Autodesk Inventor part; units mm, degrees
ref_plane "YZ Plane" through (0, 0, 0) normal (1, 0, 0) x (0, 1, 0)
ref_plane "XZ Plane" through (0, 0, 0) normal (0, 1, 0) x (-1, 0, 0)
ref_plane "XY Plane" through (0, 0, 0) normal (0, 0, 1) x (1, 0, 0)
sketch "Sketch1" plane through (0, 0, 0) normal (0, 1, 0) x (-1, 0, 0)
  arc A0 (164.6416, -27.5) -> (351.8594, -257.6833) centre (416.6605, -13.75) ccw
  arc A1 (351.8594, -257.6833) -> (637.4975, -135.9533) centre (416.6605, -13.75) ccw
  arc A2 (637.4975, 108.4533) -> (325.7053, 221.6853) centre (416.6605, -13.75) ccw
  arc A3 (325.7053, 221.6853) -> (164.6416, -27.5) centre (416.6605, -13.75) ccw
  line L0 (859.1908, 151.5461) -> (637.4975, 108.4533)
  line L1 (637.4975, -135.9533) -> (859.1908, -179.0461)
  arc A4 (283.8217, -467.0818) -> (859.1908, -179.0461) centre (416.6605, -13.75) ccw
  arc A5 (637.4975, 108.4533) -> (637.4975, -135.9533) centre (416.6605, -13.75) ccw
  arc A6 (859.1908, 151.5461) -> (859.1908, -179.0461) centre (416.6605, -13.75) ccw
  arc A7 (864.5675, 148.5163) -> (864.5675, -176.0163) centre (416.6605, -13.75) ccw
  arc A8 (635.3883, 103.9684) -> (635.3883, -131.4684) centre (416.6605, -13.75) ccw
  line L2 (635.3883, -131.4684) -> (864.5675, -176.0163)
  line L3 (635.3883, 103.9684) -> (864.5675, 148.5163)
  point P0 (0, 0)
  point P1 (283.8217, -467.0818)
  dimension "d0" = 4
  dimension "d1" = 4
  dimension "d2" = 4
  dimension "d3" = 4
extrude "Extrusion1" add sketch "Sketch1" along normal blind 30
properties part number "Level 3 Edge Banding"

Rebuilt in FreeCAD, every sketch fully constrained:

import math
import FreeCAD as App
import Part
import Sketcher

V = App.Vector
Q = App.Units.Quantity

doc = App.newDocument("Part")
body = doc.addObject("PartDesign::Body", "Body")

sketch1 = doc.addObject("Sketcher::SketchObject", "Sketch")
body.addObject(sketch1)
sketch1.AttachmentSupport = (doc.XZ_Plane, [""])
sketch1.MapMode = "FlatFace"
sketch1.addGeometry([
    Part.LineSegment(V(-635, 104, 0), V(-865, 149, 0)),
    Part.ArcOfCircle(Part.Circle(V(-417, -14, 0), V(0, 0, 1), 476), math.radians(-160), math.radians(160)),
    Part.LineSegment(V(-865, -176, 0), V(-635, -131, 0)),
    Part.ArcOfCircle(Part.Circle(V(-417, -14, 0), V(0, 0, 1), 248), math.radians(-152), math.radians(152)),
    Part.ArcOfCircle(Part.Circle(V(-417, -14, 0), V(0, 0, 1), 252), math.radians(-3), math.radians(69)),
    Part.ArcOfCircle(Part.Circle(V(-417, -14, 0), V(0, 0, 1), 252), math.radians(-75), math.radians(-3)),
    Part.ArcOfCircle(Part.Circle(V(-417, -14, 0), V(0, 0, 1), 252), math.radians(-151), math.radians(-75)),
    Part.LineSegment(V(-637, -136, 0), V(-859, -179, 0)),
    Part.ArcOfCircle(Part.Circle(V(-417, -14, 0), V(0, 0, 1), 472), math.radians(-160), math.radians(-74)),
    Part.ArcOfCircle(Part.Circle(V(-417, -14, 0), V(0, 0, 1), 472), math.radians(-74), math.radians(160)),
    Part.LineSegment(V(-859, 152, 0), V(-637, 108, 0)),
    Part.ArcOfCircle(Part.Circle(V(-417, -14, 0), V(0, 0, 1), 252), math.radians(69), math.radians(151)),
], False)
sketch1.addConstraint([
    Sketcher.Constraint("Coincident", 0, 2, 1, 2),
    Sketcher.Constraint("Coincident", 1, 1, 2, 1),
    Sketcher.Constraint("Coincident", 2, 2, 3, 1),
    Sketcher.Constraint("Coincident", 3, 2, 0, 1),
    Sketcher.Constraint("Tangent", 4, 1, 5, 2),
    Sketcher.Constraint("Tangent", 5, 1, 6, 2),
    Sketcher.Constraint("Coincident", 6, 1, 7, 1),
    Sketcher.Constraint("Coincident", 7, 2, 8, 1),
    Sketcher.Constraint("Coincident", 8, 2, 9, 1),
    Sketcher.Constraint("Coincident", 9, 2, 10, 1),
    Sketcher.Constraint("Coincident", 10, 2, 11, 2),
    Sketcher.Constraint("Tangent", 11, 1, 4, 2),
    Sketcher.Constraint("Coincident", 3, 3, 1, 3),
    Sketcher.Constraint("Coincident", 4, 3, 1, 3),
    Sketcher.Constraint("Coincident", 6, 3, 1, 3),
    Sketcher.Constraint("Coincident", 8, 3, 1, 3),
    Sketcher.Constraint("Coincident", 9, 3, 1, 3),
    Sketcher.Constraint("Equal", 6, 11),
    Sketcher.Constraint("Parallel", 2, 7),
    Sketcher.Constraint("Parallel", 0, 10),
    Sketcher.Constraint("Vertical", 0, 2, 1, 1),
    Sketcher.Constraint("Vertical", 2, 2, 3, 2),
    Sketcher.Constraint("Vertical", 7, 2, 9, 2),
    Sketcher.Constraint("Angle", 0, Q("169 deg")),
    Sketcher.Constraint("DistanceY", 4, 1, -1, 1, Q("27.5 mm")),
    Sketcher.Constraint("Radius", 1, Q("476.3938 mm")),
    Sketcher.Constraint("Radius", 3, Q("248.3938 mm")),
    Sketcher.Constraint("Radius", 4, Q("252.3937 mm")),
    Sketcher.Constraint("Radius", 8, Q("472.3938 mm")),
    Sketcher.Constraint("DistanceY", 1, 3, -1, 1, Q("13.75 mm")),
    Sketcher.Constraint("DistanceX", 8, 2, 4, 1, Q("119.18 mm")),
    Sketcher.Constraint("DistanceX", 0, 2, 10, 2, Q("227.07 mm")),
    Sketcher.Constraint("DistanceY", 7, 2, -1, 1, Q("179.046 mm")),
    Sketcher.Constraint("DistanceX", 1, 3, 5, 1, Q("64.801 mm")),
    Sketcher.Constraint("DistanceX", 1, 3, -1, 1, Q("416.6605 mm")),
    Sketcher.Constraint("DistanceX", 11, 1, -1, 1, Q("325.7053 mm")),
])
pad1 = doc.addObject("PartDesign::Pad", "Pad")
body.addObject(pad1)
pad1.Profile = sketch1
pad1.Length = 30
pad1.Reversed = True

doc.recompute()
